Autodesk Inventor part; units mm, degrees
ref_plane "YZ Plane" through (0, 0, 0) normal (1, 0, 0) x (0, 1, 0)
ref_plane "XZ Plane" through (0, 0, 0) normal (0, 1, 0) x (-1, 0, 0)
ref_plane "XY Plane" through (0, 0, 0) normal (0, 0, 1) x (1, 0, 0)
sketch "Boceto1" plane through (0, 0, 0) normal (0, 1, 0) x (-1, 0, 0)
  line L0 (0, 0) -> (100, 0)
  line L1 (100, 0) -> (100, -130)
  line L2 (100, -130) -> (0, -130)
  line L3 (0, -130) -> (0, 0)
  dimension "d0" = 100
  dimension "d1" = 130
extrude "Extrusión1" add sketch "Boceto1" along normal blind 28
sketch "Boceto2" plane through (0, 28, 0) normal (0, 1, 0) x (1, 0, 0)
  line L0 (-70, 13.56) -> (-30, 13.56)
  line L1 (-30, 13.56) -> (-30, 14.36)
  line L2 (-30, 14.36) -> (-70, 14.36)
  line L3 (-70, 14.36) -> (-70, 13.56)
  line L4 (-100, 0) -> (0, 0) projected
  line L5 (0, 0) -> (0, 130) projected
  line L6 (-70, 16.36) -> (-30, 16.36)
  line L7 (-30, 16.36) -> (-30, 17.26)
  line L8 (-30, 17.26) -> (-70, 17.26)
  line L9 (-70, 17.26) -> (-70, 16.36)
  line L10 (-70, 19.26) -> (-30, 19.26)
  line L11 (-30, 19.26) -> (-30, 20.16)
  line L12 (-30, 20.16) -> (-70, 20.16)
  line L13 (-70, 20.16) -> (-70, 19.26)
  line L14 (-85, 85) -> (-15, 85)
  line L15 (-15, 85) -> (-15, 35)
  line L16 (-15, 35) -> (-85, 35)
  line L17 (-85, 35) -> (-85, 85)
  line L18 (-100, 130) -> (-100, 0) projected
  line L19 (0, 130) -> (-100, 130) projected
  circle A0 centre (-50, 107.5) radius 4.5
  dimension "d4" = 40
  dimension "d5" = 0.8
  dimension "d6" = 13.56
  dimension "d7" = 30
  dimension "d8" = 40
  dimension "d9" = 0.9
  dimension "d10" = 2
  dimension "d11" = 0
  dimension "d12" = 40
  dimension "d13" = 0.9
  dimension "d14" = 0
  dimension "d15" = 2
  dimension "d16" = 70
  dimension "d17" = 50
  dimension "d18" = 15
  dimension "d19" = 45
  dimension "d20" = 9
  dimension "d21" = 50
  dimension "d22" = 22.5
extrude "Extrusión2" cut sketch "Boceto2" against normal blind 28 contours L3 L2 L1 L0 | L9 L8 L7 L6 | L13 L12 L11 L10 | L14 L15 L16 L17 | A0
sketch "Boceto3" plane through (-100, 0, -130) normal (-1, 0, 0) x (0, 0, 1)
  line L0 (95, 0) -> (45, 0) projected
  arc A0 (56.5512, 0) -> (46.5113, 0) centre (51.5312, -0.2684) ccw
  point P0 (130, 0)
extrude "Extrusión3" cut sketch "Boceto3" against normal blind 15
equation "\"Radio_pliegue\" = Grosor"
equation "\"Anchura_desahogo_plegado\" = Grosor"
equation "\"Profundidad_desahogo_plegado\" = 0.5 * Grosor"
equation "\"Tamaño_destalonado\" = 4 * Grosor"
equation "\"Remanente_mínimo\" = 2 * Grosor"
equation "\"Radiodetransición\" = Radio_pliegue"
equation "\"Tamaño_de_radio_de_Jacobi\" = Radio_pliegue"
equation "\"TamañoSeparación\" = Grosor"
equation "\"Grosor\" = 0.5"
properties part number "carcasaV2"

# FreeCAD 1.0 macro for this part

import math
import FreeCAD as App
import Part
import Sketcher

V = App.Vector


def add_polygon(sketch, points):
    """Adds a closed chain of lines whose ends are joined by coincident constraints."""
    first, n = sketch.GeometryCount, len(points)
    for a, b in zip(points, points[1:] + points[:1]):
        sketch.addGeometry(Part.LineSegment(App.Vector(*a, 0), App.Vector(*b, 0)), False)
    for i in range(n):
        sketch.addConstraint(Sketcher.Constraint("Coincident", first + i, 2, first + (i + 1) % n, 1))

doc = App.newDocument("Part")
params = doc.addObject("Spreadsheet::Sheet", "Params")
for row, (alias, value) in enumerate([
    ("sketch1_width", "100 mm"),
    ("sketch1_height", "130 mm"),
    ("pad1_length", "28 mm"),
    ("sketch2_diameter", "9 mm"),
    ("sketch2_width", "40 mm"),
    ("sketch2_width2", "70 mm"),
    ("sketch2_height", "50 mm"),
    ("sketch2_height2", "0.8 mm"),
    ("pocket1_length", "28 mm"),
    ("sketch3_height", "10.04 mm"),
    ("pocket2_length", "15 mm"),
], start=1):
    params.set(f"A{row}", alias)
    params.set(f"B{row}", "=" + value)
    params.setAlias(f"B{row}", alias)

body = doc.addObject("PartDesign::Body", "Body")

# Sketch on XZ plane
sketch1 = doc.addObject("Sketcher::SketchObject", "Sketch")
body.addObject(sketch1)
sketch1.AttachmentSupport = (doc.XZ_Plane, [""])
sketch1.MapMode = "FlatFace"
add_polygon(sketch1, [(-100, 0), (0, 0), (0, -130), (-100, -130)])  # lines 0-3
sketch1.addConstraint([
    Sketcher.Constraint("Horizontal", 0),
    Sketcher.Constraint("Vertical", 1),
    Sketcher.Constraint("Horizontal", 2),
    Sketcher.Constraint("Vertical", 3),
    Sketcher.Constraint("Coincident", 0, 2, -1, 1),
    Sketcher.Constraint("DistanceX", 0, 1, 0, 2, 100.0),
    Sketcher.Constraint("DistanceY", 1, 2, 1, 1, 130.0),
])
sketch1.setExpression("Constraints[9]", "Params.sketch1_width")
sketch1.setExpression("Constraints[10]", "Params.sketch1_height")
pad1 = doc.addObject("PartDesign::Pad", "Pad")
body.addObject(pad1)
pad1.Profile = sketch1
pad1.setExpression("Length", "Params.pad1_length")
pad1.Reversed = True

# Sketch on XZ plane
sketch2 = doc.addObject("Sketcher::SketchObject", "Sketch001")
body.addObject(sketch2)
sketch2.AttachmentSupport = (doc.XZ_Plane, [""])
sketch2.MapMode = "FlatFace"
sketch2.AttachmentOffset = App.Placement(V(0, 0, -28), App.Rotation())
add_polygon(sketch2, [(-70, -14.4), (-70, -13.6), (-30, -13.6), (-30, -14.4)])  # lines 0-3
add_polygon(sketch2, [(-70, -17.3), (-70, -16.4), (-30, -16.4), (-30, -17.3)])  # lines 4-7
add_polygon(sketch2, [(-70, -20.2), (-70, -19.3), (-30, -19.3), (-30, -20.2)])  # lines 8-11
add_polygon(sketch2, [(-15, -85), (-85, -85), (-85, -35), (-15, -35)])  # lines 12-15
sketch2.addGeometry(Part.Circle(V(-50, -107.5, 0), V(0, 0, 1), 4.5), False)  # 16
sketch2.addConstraint([
    Sketcher.Constraint("Vertical", 0),
    Sketcher.Constraint("Horizontal", 1),
    Sketcher.Constraint("Vertical", 2),
    Sketcher.Constraint("Horizontal", 3),
    Sketcher.Constraint("Vertical", 4),
    Sketcher.Constraint("Horizontal", 5),
    Sketcher.Constraint("Vertical", 6),
    Sketcher.Constraint("Horizontal", 7),
    Sketcher.Constraint("Vertical", 8),
    Sketcher.Constraint("Horizontal", 9),
    Sketcher.Constraint("Vertical", 10),
    Sketcher.Constraint("Horizontal", 11),
    Sketcher.Constraint("Horizontal", 12),
    Sketcher.Constraint("Vertical", 13),
    Sketcher.Constraint("Horizontal", 14),
    Sketcher.Constraint("Vertical", 15),
    Sketcher.Constraint("Vertical", 3, 2, 4, 2),
    Sketcher.Constraint("Vertical", 2, 2, 5, 2),
    Sketcher.Constraint("Vertical", 7, 2, 8, 2),
    Sketcher.Constraint("Vertical", 6, 2, 9, 2),
    Sketcher.Constraint("Equal", 6, 8),
    Sketcher.Constraint("Diameter", 16, 9.0),
    Sketcher.Constraint("DistanceX", 1, 1, 1, 2, 40.0),
    Sketcher.Constraint("DistanceX", 12, 2, 12, 1, 70.0),
    Sketcher.Constraint("DistanceY", 13, 1, 13, 2, 50.0),
    Sketcher.Constraint("DistanceY", 0, 1, 0, 2, 0.8),
    Sketcher.Constraint("DistanceY", 4, 1, 4, 2, 0.9),
    Sketcher.Constraint("DistanceX", 16, 3, -1, 1, 50.0),
    Sketcher.Constraint("DistanceX", 0, 2, -1, 1, 70.0),
    Sketcher.Constraint("DistanceX", 14, 2, -1, 1, 15.0),
    Sketcher.Constraint("DistanceY", 4, 2, 3, 2, 2.0),
    Sketcher.Constraint("DistanceY", 8, 2, 7, 2, 2.0),
    Sketcher.Constraint("DistanceY", 16, 3, 12, 2, 22.5),
    Sketcher.Constraint("DistanceY", 0, 2, -1, 1, 13.56),
    Sketcher.Constraint("DistanceY", 12, 2, -1, 1, 85.0),
])
sketch2.setExpression("Constraints[37]", "Params.sketch2_diameter")
sketch2.setExpression("Constraints[38]", "Params.sketch2_width")
sketch2.setExpression("Constraints[39]", "Params.sketch2_width2")
sketch2.setExpression("Constraints[40]", "Params.sketch2_height")
sketch2.setExpression("Constraints[41]", "Params.sketch2_height2")
pocket1 = doc.addObject("PartDesign::Pocket", "Pocket")
body.addObject(pocket1)
pocket1.Profile = sketch2
pocket1.setExpression("Length", "Params.pocket1_length")
pocket1.Reversed = True

# Sketch on YZ plane
sketch3 = doc.addObject("Sketcher::SketchObject", "Sketch002")
body.addObject(sketch3)
sketch3.AttachmentSupport = (doc.YZ_Plane, [""])
sketch3.MapMode = "FlatFace"
sketch3.AttachmentOffset = App.Placement(V(0, 0, -100), App.Rotation())
sketch3.addGeometry([
    Part.LineSegment(V(0, -83, 0), V(0, -73, 0)),
    Part.ArcOfCircle(Part.Circle(V(0, -78, 0), V(0, 0, 1), 5), math.radians(-87), math.radians(87)),
], False)
sketch3.addConstraint([
    Sketcher.Constraint("Coincident", 0, 1, 1, 1),
    Sketcher.Constraint("Coincident", 1, 2, 0, 2),
    Sketcher.Constraint("Vertical", 0),
    Sketcher.Constraint("PointOnObject", 0, 1, -2),
    Sketcher.Constraint("DistanceY", 0, 1, 0, 2, 10.04),
    Sketcher.Constraint("Radius", 1, 5.0272),
    Sketcher.Constraint("DistanceY", 1, 3, -1, 1, 78.4688),
])
sketch3.setExpression("Constraints[4]", "Params.sketch3_height")
pocket2 = doc.addObject("PartDesign::Pocket", "Pocket001")
body.addObject(pocket2)
pocket2.Profile = sketch3
pocket2.setExpression("Length", "Params.pocket2_length")
pocket2.Reversed = True

doc.recompute()
